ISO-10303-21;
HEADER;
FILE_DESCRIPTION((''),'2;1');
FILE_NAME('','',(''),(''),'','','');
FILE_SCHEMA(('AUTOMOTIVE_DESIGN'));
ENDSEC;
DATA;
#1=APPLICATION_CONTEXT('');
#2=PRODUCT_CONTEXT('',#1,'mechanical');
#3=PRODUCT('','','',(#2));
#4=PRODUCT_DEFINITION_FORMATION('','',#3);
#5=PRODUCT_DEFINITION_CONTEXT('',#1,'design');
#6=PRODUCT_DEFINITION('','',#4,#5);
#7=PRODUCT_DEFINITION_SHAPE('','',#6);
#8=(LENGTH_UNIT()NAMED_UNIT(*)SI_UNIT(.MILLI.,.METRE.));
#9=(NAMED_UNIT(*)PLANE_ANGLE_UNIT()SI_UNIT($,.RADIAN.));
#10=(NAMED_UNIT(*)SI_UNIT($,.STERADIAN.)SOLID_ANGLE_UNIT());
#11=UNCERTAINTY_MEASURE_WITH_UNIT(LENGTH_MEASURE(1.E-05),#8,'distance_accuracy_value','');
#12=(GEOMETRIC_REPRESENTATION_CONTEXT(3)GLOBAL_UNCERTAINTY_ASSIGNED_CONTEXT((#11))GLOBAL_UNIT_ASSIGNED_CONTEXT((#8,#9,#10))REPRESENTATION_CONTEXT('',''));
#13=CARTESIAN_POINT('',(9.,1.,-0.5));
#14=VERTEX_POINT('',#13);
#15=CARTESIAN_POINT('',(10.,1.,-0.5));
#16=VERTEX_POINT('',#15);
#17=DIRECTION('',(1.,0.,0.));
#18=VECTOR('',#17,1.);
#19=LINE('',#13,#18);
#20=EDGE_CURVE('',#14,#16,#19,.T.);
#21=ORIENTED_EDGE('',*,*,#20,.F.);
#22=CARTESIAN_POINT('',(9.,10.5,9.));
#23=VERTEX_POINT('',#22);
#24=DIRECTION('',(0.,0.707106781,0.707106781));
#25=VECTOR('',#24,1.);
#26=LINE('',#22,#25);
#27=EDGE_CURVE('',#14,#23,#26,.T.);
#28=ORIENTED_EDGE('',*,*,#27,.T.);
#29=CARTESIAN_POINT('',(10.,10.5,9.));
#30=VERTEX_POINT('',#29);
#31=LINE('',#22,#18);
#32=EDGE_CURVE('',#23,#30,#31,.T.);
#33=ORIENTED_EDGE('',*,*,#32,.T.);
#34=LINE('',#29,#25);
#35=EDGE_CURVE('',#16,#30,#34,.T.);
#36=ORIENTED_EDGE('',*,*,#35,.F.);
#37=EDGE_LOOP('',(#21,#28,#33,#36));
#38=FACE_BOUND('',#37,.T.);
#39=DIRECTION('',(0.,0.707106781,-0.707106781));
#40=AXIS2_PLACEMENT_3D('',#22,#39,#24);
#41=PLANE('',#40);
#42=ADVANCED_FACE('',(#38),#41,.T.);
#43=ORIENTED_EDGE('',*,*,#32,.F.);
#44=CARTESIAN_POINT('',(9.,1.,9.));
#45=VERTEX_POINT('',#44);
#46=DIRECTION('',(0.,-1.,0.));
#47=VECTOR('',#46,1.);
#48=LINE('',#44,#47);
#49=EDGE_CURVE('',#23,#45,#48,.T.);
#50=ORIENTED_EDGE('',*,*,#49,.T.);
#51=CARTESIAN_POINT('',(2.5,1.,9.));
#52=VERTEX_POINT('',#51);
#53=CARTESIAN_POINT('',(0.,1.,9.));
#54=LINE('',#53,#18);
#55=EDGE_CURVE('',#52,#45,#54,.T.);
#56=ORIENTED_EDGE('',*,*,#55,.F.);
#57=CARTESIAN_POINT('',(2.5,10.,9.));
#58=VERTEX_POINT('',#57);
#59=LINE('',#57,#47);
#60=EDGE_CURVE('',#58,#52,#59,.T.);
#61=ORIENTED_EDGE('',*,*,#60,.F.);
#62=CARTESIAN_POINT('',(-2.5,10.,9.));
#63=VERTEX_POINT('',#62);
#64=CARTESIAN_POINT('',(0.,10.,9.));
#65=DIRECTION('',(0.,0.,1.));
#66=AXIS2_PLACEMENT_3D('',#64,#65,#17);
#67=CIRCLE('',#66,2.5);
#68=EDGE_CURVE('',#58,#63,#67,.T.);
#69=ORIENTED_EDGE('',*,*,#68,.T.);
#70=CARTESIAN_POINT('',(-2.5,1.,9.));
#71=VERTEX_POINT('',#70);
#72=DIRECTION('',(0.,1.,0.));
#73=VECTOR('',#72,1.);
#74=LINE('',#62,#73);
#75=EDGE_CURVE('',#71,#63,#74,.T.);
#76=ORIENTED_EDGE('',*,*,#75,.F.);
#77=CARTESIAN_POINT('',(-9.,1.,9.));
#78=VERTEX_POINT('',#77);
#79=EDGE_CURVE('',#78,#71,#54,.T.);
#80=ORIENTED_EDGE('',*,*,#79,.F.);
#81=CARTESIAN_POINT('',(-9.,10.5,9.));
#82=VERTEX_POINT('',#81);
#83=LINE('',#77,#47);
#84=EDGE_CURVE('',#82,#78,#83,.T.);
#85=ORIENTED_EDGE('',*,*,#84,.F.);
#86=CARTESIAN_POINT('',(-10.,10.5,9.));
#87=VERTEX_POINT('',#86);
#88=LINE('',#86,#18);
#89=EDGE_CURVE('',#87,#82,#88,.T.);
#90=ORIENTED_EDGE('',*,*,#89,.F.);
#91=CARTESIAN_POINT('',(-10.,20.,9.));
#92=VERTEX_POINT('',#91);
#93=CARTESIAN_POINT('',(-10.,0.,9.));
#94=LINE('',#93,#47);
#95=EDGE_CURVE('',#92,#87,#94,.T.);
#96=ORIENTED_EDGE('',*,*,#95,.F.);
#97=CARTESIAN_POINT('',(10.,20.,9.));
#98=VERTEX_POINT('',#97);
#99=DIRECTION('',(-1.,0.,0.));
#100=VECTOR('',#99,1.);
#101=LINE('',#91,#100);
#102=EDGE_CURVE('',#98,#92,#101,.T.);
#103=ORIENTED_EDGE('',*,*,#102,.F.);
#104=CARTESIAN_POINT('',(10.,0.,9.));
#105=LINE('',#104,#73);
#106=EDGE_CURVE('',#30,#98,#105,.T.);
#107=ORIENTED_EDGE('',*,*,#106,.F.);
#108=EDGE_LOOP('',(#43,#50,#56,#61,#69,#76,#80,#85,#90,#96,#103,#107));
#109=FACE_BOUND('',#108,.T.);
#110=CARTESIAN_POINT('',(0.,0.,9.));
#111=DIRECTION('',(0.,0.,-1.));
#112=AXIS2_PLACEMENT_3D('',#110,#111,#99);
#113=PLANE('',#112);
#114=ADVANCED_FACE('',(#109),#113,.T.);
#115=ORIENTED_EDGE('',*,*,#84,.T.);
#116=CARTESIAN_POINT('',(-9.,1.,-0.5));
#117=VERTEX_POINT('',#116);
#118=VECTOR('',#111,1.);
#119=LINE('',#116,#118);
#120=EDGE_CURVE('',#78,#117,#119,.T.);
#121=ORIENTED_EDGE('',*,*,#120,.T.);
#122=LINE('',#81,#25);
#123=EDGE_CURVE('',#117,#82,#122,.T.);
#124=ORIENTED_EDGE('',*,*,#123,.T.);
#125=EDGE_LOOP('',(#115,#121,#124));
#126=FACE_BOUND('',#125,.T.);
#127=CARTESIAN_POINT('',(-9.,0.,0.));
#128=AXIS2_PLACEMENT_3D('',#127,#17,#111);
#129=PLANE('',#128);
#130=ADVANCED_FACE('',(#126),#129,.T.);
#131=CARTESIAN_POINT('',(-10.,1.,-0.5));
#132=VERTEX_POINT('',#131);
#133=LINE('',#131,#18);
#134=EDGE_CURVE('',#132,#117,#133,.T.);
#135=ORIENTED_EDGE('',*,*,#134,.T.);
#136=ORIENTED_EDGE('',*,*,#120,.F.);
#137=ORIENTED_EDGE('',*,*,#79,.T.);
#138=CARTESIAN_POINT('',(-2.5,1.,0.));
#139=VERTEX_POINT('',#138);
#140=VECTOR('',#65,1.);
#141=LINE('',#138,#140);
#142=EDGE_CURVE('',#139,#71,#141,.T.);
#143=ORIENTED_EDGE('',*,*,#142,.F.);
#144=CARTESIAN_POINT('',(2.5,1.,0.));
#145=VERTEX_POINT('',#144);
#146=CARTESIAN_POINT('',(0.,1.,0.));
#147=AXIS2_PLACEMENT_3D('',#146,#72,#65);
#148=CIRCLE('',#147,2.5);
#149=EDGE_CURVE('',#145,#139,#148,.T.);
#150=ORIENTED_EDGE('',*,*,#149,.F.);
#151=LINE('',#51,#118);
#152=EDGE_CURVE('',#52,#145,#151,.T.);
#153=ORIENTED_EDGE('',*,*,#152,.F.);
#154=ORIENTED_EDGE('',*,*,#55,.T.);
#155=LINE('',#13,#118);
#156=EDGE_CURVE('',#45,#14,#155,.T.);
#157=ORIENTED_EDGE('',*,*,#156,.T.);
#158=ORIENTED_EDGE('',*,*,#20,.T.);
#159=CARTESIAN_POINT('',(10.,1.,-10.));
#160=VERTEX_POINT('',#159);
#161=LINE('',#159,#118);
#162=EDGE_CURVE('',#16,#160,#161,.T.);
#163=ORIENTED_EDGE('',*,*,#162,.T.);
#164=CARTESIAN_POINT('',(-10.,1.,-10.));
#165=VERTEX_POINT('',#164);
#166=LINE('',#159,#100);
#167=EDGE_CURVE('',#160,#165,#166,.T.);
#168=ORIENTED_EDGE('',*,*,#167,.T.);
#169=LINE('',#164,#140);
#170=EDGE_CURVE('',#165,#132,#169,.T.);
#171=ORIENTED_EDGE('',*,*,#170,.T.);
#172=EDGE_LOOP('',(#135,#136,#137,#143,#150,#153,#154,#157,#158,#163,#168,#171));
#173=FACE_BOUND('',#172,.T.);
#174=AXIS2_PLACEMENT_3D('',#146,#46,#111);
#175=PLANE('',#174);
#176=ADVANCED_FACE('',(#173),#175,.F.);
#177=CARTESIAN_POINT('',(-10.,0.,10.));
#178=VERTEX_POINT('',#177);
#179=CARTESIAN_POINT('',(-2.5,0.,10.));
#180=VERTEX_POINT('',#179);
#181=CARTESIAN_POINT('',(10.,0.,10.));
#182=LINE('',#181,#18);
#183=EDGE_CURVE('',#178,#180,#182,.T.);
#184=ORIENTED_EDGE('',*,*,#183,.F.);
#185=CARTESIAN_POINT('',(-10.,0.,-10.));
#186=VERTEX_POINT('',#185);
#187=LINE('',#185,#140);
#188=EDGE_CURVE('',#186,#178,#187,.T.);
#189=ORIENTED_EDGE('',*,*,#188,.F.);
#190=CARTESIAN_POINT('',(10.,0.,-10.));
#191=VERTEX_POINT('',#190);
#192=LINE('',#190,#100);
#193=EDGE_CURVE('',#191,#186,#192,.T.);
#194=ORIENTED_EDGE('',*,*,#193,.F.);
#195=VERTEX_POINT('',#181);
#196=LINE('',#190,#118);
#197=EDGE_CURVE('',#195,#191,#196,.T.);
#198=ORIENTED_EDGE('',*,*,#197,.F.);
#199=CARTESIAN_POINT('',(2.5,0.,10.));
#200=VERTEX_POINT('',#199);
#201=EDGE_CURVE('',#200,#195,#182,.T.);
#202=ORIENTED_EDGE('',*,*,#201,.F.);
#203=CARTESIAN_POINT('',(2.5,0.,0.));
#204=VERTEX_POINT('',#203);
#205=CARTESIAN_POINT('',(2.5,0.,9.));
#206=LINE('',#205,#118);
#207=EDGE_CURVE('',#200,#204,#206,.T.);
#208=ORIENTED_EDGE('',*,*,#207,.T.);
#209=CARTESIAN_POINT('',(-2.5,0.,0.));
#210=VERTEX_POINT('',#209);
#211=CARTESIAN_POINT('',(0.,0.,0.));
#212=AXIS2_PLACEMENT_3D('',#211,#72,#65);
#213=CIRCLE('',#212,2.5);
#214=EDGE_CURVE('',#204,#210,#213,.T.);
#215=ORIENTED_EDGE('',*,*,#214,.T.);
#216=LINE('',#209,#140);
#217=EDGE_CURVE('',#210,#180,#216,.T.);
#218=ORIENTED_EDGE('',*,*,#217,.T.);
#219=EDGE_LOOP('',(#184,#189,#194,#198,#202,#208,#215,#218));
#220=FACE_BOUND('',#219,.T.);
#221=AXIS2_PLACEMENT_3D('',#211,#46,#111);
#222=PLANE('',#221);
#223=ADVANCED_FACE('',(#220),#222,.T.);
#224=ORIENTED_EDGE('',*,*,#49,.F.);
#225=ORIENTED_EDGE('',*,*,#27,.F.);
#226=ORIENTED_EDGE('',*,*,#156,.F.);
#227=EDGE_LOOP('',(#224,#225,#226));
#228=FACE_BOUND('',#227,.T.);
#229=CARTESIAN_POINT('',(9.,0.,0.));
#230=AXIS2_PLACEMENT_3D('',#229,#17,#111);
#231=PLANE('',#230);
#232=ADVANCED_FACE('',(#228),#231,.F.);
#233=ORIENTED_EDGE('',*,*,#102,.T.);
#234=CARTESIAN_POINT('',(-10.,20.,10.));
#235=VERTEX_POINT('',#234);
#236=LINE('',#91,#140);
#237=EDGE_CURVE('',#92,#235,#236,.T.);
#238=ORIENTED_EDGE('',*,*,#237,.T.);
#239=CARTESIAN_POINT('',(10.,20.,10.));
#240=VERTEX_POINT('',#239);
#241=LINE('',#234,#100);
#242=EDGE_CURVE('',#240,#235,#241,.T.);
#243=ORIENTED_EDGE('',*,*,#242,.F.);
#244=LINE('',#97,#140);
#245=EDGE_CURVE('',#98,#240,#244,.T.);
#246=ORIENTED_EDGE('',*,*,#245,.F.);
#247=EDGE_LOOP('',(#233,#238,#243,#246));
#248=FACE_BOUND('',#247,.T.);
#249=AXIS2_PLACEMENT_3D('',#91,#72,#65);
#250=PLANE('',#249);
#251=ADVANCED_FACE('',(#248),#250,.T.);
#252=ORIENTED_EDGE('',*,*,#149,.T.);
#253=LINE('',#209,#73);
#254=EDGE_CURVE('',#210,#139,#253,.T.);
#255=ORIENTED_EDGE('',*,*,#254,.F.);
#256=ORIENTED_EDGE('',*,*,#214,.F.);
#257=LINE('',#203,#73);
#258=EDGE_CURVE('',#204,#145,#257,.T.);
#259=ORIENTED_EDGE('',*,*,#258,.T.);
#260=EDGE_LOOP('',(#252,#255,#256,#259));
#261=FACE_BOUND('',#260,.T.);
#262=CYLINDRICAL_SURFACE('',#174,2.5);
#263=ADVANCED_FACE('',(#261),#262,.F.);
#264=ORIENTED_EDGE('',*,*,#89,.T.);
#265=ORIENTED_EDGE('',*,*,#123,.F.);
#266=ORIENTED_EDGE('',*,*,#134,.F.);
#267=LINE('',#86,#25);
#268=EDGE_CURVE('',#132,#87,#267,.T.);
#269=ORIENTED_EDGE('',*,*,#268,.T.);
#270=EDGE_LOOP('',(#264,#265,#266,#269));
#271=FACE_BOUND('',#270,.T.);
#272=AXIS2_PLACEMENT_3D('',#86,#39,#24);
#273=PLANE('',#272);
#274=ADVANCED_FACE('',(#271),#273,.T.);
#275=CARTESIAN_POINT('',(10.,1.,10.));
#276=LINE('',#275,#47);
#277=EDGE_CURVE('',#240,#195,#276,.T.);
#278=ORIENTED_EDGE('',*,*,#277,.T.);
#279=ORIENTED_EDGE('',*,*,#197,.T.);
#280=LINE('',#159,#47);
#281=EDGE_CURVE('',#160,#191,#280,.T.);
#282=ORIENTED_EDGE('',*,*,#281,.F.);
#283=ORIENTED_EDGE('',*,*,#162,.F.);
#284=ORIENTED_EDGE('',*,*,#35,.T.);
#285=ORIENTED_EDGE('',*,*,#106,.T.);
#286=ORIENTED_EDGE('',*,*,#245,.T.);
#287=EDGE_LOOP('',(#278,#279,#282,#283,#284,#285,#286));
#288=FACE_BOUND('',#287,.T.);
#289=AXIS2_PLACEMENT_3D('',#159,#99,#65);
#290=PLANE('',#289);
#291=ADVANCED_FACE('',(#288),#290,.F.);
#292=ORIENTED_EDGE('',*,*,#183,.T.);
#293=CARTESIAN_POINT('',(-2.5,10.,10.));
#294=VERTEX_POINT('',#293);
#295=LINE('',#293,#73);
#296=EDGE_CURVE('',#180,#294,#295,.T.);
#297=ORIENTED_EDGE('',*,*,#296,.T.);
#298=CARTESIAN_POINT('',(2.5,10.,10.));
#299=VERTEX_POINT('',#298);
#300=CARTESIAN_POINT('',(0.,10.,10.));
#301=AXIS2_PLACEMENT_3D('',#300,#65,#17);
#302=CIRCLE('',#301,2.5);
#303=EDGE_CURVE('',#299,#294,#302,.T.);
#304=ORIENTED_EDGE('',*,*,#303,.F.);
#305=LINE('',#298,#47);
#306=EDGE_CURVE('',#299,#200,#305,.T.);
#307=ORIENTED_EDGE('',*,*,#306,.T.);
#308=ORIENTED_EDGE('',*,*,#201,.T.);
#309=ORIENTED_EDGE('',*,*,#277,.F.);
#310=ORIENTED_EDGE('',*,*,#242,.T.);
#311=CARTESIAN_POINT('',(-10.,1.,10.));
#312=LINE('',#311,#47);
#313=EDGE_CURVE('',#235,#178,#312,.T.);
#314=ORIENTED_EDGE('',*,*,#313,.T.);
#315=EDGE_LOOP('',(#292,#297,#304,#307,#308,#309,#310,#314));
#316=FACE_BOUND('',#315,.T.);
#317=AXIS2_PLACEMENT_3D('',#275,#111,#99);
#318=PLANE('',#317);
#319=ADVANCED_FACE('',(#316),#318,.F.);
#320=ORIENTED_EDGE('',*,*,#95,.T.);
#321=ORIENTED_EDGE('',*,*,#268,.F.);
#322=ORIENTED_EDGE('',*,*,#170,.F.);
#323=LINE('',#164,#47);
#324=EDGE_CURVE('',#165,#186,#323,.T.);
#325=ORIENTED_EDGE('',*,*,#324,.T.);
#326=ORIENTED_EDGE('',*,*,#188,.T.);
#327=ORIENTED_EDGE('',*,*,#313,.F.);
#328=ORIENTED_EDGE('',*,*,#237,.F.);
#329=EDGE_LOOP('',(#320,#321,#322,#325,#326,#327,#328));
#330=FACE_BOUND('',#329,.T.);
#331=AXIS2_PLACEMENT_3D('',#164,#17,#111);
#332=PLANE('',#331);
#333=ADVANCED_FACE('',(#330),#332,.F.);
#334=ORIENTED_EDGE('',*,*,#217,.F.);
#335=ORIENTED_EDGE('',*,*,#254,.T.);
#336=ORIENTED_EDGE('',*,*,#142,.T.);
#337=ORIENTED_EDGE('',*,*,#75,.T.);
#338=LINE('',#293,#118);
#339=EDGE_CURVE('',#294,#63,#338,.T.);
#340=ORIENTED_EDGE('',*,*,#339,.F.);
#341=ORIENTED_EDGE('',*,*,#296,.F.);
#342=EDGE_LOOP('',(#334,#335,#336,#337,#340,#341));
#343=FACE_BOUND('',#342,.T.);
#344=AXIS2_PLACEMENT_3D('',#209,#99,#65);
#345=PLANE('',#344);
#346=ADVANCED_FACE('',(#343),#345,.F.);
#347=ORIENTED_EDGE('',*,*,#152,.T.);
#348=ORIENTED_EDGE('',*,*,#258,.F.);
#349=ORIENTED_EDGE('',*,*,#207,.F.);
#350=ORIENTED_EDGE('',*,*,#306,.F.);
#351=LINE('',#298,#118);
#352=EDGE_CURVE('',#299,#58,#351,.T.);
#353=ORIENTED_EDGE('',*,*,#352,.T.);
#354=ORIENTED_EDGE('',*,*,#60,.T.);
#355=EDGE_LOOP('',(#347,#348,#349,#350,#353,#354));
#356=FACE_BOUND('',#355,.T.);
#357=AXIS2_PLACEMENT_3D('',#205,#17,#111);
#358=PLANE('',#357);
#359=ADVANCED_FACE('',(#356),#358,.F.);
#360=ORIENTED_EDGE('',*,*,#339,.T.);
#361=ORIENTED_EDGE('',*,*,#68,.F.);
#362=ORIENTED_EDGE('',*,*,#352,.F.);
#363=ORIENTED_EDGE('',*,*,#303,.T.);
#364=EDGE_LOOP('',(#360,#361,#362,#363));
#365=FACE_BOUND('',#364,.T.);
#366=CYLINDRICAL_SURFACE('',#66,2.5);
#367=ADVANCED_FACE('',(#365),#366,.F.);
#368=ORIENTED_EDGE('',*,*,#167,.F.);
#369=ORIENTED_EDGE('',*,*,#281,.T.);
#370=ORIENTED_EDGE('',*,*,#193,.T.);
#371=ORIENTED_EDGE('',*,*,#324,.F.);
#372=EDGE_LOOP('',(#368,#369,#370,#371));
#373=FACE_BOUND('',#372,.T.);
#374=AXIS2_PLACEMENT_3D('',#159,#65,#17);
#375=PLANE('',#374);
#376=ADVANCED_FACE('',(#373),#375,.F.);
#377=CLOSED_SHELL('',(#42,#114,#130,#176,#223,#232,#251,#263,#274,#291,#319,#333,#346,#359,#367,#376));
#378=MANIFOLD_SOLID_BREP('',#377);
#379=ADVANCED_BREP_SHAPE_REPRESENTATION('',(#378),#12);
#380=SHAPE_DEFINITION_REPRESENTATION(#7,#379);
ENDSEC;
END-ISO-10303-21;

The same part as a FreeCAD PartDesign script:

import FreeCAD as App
import Part
import Sketcher
Q = App.Units.Quantity

doc = App.newDocument("Part")
body = doc.addObject("PartDesign::Body", "Body")

sketch1 = doc.addObject("Sketcher::SketchObject", "Sketch")
body.addObject(sketch1)
sketch1.AttachmentSupport = (doc.XZ_Plane, [""])
sketch1.MapMode = "FlatFace"
sketch1.addGeometry([
    Part.LineSegment(App.Vector(-10, -10, 0), App.Vector(-10, 10, 0)),
    Part.LineSegment(App.Vector(-10, 10, 0), App.Vector(10, 10, 0)),
    Part.LineSegment(App.Vector(10, 10, 0), App.Vector(10, -10, 0)),
    Part.LineSegment(App.Vector(10, -10, 0), App.Vector(-10, -10, 0)),
    Part.Circle(App.Vector(0, 0, 0), App.Vector(0, 0, 1), 2.5),
], False)
sketch1.addConstraint([
    Sketcher.Constraint("Coincident", 0, 2, 1, 1),
    Sketcher.Constraint("Coincident", 1, 2, 2, 1),
    Sketcher.Constraint("Coincident", 2, 2, 3, 1),
    Sketcher.Constraint("Coincident", 3, 2, 0, 1),
    Sketcher.Constraint("Vertical", 0),
    Sketcher.Constraint("Horizontal", 1),
    Sketcher.Constraint("Vertical", 2),
    Sketcher.Constraint("Horizontal", 3),
    Sketcher.Constraint("Coincident", 4, 3, -1, 1),
    Sketcher.Constraint("Symmetric", 0, 2, 2, 2, -1, 1),
    Sketcher.Constraint("Equal", 3, 0),
    Sketcher.Constraint("Diameter", 4, Q("5 mm")),
    Sketcher.Constraint("DistanceX", 1, 1, 1, 2, Q("20 mm")),
])
pad1 = doc.addObject("PartDesign::Pad", "Pad")
body.addObject(pad1)
pad1.Profile = sketch1
pad1.Length = 1
pad1.Reversed = True

sketch2 = doc.addObject("Sketcher::SketchObject", "Sketch001")
body.addObject(sketch2)
sketch2.AttachmentSupport = (doc.XY_Plane, [""])
sketch2.MapMode = "FlatFace"
sketch2.AttachmentOffset = App.Placement(App.Vector(0, 0, 10), App.Rotation())
sketch2.addGeometry([
    Part.LineSegment(App.Vector(-10, 20, 0), App.Vector(-10, 0, 0)),
    Part.LineSegment(App.Vector(-10, 0, 0), App.Vector(10, 0, 0)),
    Part.LineSegment(App.Vector(10, 0, 0), App.Vector(10, 20, 0)),
    Part.LineSegment(App.Vector(10, 20, 0), App.Vector(-10, 20, 0)),
    Part.Circle(App.Vector(0, 10, 0), App.Vector(0, 0, 1), 2.5),
], False)
sketch2.addConstraint([
    Sketcher.Constraint("Coincident", 0, 2, 1, 1),
    Sketcher.Constraint("Coincident", 1, 2, 2, 1),
    Sketcher.Constraint("Coincident", 2, 2, 3, 1),
    Sketcher.Constraint("Coincident", 3, 2, 0, 1),
    Sketcher.Constraint("Vertical", 0),
    Sketcher.Constraint("Horizontal", 1),
    Sketcher.Constraint("Vertical", 2),
    Sketcher.Constraint("Horizontal", 3),
    Sketcher.Constraint("Symmetric", 0, 2, 1, 2, -1, 1),
    Sketcher.Constraint("PointOnObject", 4, 3, -2),
    Sketcher.Constraint("Equal", 3, 0),
    Sketcher.Constraint("Diameter", 4, Q("5 mm")),
    Sketcher.Constraint("DistanceX", 1, 1, 1, 2, Q("20 mm")),
    Sketcher.Constraint("DistanceY", -1, 1, 4, 3, Q("10 mm")),
])
pad2 = doc.addObject("PartDesign::Pad", "Pad001")
body.addObject(pad2)
pad2.Profile = sketch2
pad2.Length = 1
pad2.Reversed = True

sketch3 = doc.addObject("Sketcher::SketchObject", "Sketch002")
body.addObject(sketch3)
sketch3.AttachmentSupport = (doc.YZ_Plane, [""])
sketch3.MapMode = "FlatFace"
sketch3.AttachmentOffset = App.Placement(App.Vector(0, 0, 10), App.Rotation())
sketch3.addGeometry([
    Part.LineSegment(App.Vector(1, 0, 0), App.Vector(10, 9, 0)),
    Part.LineSegment(App.Vector(10, 9, 0), App.Vector(1, 9, 0)),
    Part.LineSegment(App.Vector(1, 9, 0), App.Vector(1, 0, 0)),
], False)
sketch3.addConstraint([
    Sketcher.Constraint("Coincident", 0, 2, 1, 1),
    Sketcher.Constraint("Coincident", 1, 2, 2, 1),
    Sketcher.Constraint("Coincident", 2, 2, 0, 1),
    Sketcher.Constraint("Horizontal", 1),
    Sketcher.Constraint("Vertical", 2),
    Sketcher.Constraint("Equal", 1, 2),
    Sketcher.Constraint("DistanceX", 1, 2, 1, 1, Q("9.5 mm")),
    Sketcher.Constraint("DistanceY", -1, 1, 0, 2, Q("9 mm")),
    Sketcher.Constraint("DistanceX", -1, 1, 1, 2, Q("1 mm")),
])
pad3 = doc.addObject("PartDesign::Pad", "Pad002")
body.addObject(pad3)
pad3.Profile = sketch3
pad3.Length = 1
pad3.Reversed = True

sketch4 = doc.addObject("Sketcher::SketchObject", "Sketch003")
body.addObject(sketch4)
sketch4.AttachmentSupport = (doc.YZ_Plane, [""])
sketch4.MapMode = "FlatFace"
sketch4.AttachmentOffset = App.Placement(App.Vector(0, 0, -9), App.Rotation())
sketch4.addGeometry([
    Part.LineSegment(App.Vector(1, 0, 0), App.Vector(10, 9, 0)),
    Part.LineSegment(App.Vector(10, 9, 0), App.Vector(1, 9, 0)),
    Part.LineSegment(App.Vector(1, 9, 0), App.Vector(1, 0, 0)),
], False)
sketch4.addConstraint([
    Sketcher.Constraint("Coincident", 0, 2, 1, 1),
    Sketcher.Constraint("Coincident", 1, 2, 2, 1),
    Sketcher.Constraint("Coincident", 2, 2, 0, 1),
    Sketcher.Constraint("Horizontal", 1),
    Sketcher.Constraint("Vertical", 2),
    Sketcher.Constraint("Equal", 1, 2),
    Sketcher.Constraint("DistanceX", 1, 2, 1, 1, Q("9.5 mm")),
    Sketcher.Constraint("DistanceY", -1, 1, 0, 2, Q("9 mm")),
    Sketcher.Constraint("DistanceX", -1, 1, 1, 2, Q("1 mm")),
])
pad4 = doc.addObject("PartDesign::Pad", "Pad003")
body.addObject(pad4)
pad4.Profile = sketch4
pad4.Length = 1
pad4.Reversed = True

sketch5 = doc.addObject("Sketcher::SketchObject", "Sketch004")
body.addObject(sketch5)
sketch5.AttachmentSupport = (doc.XZ_Plane, [""])
sketch5.MapMode = "FlatFace"
sketch5.AttachmentOffset = App.Placement(App.Vector(0, 0, -1), App.Rotation())
sketch5.addGeometry([
    Part.LineSegment(App.Vector(-2, 0, 0), App.Vector(-2, 9, 0)),
    Part.LineSegment(App.Vector(-2, 9, 0), App.Vector(2, 9, 0)),
    Part.LineSegment(App.Vector(2, 9, 0), App.Vector(2, 0, 0)),
    Part.LineSegment(App.Vector(2, 0, 0), App.Vector(-2, 0, 0)),
], False)
sketch5.addConstraint([
    Sketcher.Constraint("Coincident", 0, 2, 1, 1),
    Sketcher.Constraint("Coincident", 1, 2, 2, 1),
    Sketcher.Constraint("Coincident", 2, 2, 3, 1),
    Sketcher.Constraint("Coincident", 3, 2, 0, 1),
    Sketcher.Constraint("Vertical", 0),
    Sketcher.Constraint("Horizontal", 1),
    Sketcher.Constraint("Vertical", 2),
    Sketcher.Constraint("Horizontal", 3),
    Sketcher.Constraint("Symmetric", 2, 2, 3, 2, -1, 1),
    Sketcher.Constraint("DistanceX", 1, 1, 1, 2, Q("5 mm")),
    Sketcher.Constraint("DistanceY", 0, 1, 0, 2, Q("9 mm")),
])
pocket1 = doc.addObject("PartDesign::Pocket", "Pocket")
body.addObject(pocket1)
pocket1.Profile = sketch5
pocket1.Type = "ThroughAll"
pocket1.Reversed = True

sketch6 = doc.addObject("Sketcher::SketchObject", "Sketch005")
body.addObject(sketch6)
sketch6.AttachmentSupport = (doc.XY_Plane, [""])
sketch6.MapMode = "FlatFace"
sketch6.AttachmentOffset = App.Placement(App.Vector(0, 0, 9), App.Rotation())
sketch6.addGeometry([
    Part.LineSegment(App.Vector(2, 10, 0), App.Vector(2, 0, 0)),
    Part.LineSegment(App.Vector(2, 0, 0), App.Vector(-2, 0, 0)),
    Part.LineSegment(App.Vector(-2, 0, 0), App.Vector(-2, 10, 0)),
    Part.LineSegment(App.Vector(-2, 10, 0), App.Vector(2, 10, 0)),
], False)
sketch6.addConstraint([
    Sketcher.Constraint("Coincident", 0, 2, 1, 1),
    Sketcher.Constraint("Coincident", 1, 2, 2, 1),
    Sketcher.Constraint("Coincident", 2, 2, 3, 1),
    Sketcher.Constraint("Coincident", 3, 2, 0, 1),
    Sketcher.Constraint("Vertical", 0),
    Sketcher.Constraint("Horizontal", 1),
    Sketcher.Constraint("Vertical", 2),
    Sketcher.Constraint("Horizontal", 3),
    Sketcher.Constraint("Symmetric", 0, 2, 1, 2, -1, 1),
    Sketcher.Constraint("DistanceX", 1, 2, 1, 1, Q("5 mm")),
    Sketcher.Constraint("DistanceY", 0, 2, 0, 1, Q("10 mm")),
])
pocket2 = doc.addObject("PartDesign::Pocket", "Pocket001")
body.addObject(pocket2)
pocket2.Profile = sketch6
pocket2.Type = "ThroughAll"
pocket2.Reversed = True

doc.recompute()
